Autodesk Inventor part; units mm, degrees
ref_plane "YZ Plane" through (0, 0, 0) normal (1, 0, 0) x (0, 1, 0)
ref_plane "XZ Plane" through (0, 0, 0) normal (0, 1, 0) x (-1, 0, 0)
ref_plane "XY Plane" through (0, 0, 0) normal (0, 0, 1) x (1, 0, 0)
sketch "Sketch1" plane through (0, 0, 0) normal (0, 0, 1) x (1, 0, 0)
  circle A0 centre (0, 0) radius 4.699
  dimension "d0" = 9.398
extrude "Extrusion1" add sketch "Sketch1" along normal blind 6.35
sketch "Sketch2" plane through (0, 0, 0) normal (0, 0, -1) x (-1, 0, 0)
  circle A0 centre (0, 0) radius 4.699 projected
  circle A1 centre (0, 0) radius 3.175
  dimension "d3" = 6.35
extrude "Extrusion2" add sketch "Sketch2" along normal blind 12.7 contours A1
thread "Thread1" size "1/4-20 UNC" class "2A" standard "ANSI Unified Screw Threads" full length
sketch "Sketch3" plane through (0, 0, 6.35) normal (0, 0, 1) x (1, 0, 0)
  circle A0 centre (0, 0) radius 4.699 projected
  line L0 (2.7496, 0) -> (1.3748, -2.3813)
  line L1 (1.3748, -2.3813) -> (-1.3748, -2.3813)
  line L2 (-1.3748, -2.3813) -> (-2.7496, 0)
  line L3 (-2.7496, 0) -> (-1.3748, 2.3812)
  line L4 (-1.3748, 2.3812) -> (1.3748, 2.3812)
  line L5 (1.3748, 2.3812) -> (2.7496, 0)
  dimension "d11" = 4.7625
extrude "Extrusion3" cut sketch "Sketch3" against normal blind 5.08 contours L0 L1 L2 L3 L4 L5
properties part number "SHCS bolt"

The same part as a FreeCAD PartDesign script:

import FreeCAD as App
import Part
import Sketcher
from FreeCAD import Vector
Q = App.Units.Quantity


def add_polygon(sketch, points):
    """Adds a closed chain of lines whose ends are joined by coincident constraints."""
    first, n = sketch.GeometryCount, len(points)
    for a, b in zip(points, points[1:] + points[:1]):
        sketch.addGeometry(Part.LineSegment(App.Vector(*a, 0), App.Vector(*b, 0)), False)
    for i in range(n):
        sketch.addConstraint(Sketcher.Constraint("Coincident", first + i, 2, first + (i + 1) % n, 1))

doc = App.newDocument("Part")
body = doc.addObject("PartDesign::Body", "Body")

sketch1 = body.newObject("Sketcher::SketchObject", "Sketch")
sketch1.AttachmentSupport = (doc.getObject("XY_Plane"), [""])
sketch1.MapMode = "FlatFace"
sketch1.addGeometry(Part.Circle(Vector(0, 0, 0), Vector(0, 0, 1), 4.699), False)
sketch1.addConstraint([
    Sketcher.Constraint("Coincident", 0, 3, -1, 1),
    Sketcher.Constraint("Diameter", 0, Q("0.37 in")),
])
pad1 = body.newObject("PartDesign::Pad", "Pad")
pad1.Profile = sketch1
pad1.Length = Q("0.25 in")

sketch2 = body.newObject("Sketcher::SketchObject", "Sketch001")
sketch2.AttachmentSupport = (doc.getObject("XY_Plane"), [""])
sketch2.MapMode = "FlatFace"
sketch2.addGeometry(Part.Circle(Vector(0, 0, 0), Vector(0, 0, 1), 3.175), False)
sketch2.addConstraint([
    Sketcher.Constraint("Coincident", 0, 3, -1, 1),
    Sketcher.Constraint("Diameter", 0, Q("0.25 in")),
])
pad2 = body.newObject("PartDesign::Pad", "Pad001")
pad2.Profile = sketch2
pad2.Length = Q("0.5 in")
pad2.Reversed = True

sketch3 = body.newObject("Sketcher::SketchObject", "Sketch002")
sketch3.AttachmentSupport = (doc.getObject("XY_Plane"), [""])
sketch3.MapMode = "FlatFace"
sketch3.AttachmentOffset = App.Placement(Vector(0, 0, 0.25 * 25.4), App.Rotation())
add_polygon(sketch3, [(1.3748, -2.3813), (2.7496, 0), (1.3748, 2.3812), (-1.3748, 2.3812), (-2.7496, 0), (-1.3748, -2.3813)])
sketch3.addConstraint([
    Sketcher.Constraint("Horizontal", 2),
    Sketcher.Constraint("Horizontal", 5),
    Sketcher.Constraint("Symmetric", 0, 2, 3, 2, -1, 1),
    Sketcher.Constraint("Symmetric", 1, 2, 4, 2, -1, 1),
    Sketcher.Constraint("PointOnObject", 0, 2, -1),
    Sketcher.Constraint("Parallel", 0, 3),
    Sketcher.Constraint("Vertical", 2, 2, 4, 2),
    Sketcher.Constraint("Angle", 0, Q("60.0008 deg")),
    Sketcher.Constraint("DistanceY", 4, 2, 2, 2, Q("0.1875 in")),
    Sketcher.Constraint("DistanceX", 2, 2, 2, 1, 2.7496),
])
pocket1 = body.newObject("PartDesign::Pocket", "Pocket")
pocket1.Profile = sketch3
pocket1.Length = Q("0.2 in")

doc.recompute()
